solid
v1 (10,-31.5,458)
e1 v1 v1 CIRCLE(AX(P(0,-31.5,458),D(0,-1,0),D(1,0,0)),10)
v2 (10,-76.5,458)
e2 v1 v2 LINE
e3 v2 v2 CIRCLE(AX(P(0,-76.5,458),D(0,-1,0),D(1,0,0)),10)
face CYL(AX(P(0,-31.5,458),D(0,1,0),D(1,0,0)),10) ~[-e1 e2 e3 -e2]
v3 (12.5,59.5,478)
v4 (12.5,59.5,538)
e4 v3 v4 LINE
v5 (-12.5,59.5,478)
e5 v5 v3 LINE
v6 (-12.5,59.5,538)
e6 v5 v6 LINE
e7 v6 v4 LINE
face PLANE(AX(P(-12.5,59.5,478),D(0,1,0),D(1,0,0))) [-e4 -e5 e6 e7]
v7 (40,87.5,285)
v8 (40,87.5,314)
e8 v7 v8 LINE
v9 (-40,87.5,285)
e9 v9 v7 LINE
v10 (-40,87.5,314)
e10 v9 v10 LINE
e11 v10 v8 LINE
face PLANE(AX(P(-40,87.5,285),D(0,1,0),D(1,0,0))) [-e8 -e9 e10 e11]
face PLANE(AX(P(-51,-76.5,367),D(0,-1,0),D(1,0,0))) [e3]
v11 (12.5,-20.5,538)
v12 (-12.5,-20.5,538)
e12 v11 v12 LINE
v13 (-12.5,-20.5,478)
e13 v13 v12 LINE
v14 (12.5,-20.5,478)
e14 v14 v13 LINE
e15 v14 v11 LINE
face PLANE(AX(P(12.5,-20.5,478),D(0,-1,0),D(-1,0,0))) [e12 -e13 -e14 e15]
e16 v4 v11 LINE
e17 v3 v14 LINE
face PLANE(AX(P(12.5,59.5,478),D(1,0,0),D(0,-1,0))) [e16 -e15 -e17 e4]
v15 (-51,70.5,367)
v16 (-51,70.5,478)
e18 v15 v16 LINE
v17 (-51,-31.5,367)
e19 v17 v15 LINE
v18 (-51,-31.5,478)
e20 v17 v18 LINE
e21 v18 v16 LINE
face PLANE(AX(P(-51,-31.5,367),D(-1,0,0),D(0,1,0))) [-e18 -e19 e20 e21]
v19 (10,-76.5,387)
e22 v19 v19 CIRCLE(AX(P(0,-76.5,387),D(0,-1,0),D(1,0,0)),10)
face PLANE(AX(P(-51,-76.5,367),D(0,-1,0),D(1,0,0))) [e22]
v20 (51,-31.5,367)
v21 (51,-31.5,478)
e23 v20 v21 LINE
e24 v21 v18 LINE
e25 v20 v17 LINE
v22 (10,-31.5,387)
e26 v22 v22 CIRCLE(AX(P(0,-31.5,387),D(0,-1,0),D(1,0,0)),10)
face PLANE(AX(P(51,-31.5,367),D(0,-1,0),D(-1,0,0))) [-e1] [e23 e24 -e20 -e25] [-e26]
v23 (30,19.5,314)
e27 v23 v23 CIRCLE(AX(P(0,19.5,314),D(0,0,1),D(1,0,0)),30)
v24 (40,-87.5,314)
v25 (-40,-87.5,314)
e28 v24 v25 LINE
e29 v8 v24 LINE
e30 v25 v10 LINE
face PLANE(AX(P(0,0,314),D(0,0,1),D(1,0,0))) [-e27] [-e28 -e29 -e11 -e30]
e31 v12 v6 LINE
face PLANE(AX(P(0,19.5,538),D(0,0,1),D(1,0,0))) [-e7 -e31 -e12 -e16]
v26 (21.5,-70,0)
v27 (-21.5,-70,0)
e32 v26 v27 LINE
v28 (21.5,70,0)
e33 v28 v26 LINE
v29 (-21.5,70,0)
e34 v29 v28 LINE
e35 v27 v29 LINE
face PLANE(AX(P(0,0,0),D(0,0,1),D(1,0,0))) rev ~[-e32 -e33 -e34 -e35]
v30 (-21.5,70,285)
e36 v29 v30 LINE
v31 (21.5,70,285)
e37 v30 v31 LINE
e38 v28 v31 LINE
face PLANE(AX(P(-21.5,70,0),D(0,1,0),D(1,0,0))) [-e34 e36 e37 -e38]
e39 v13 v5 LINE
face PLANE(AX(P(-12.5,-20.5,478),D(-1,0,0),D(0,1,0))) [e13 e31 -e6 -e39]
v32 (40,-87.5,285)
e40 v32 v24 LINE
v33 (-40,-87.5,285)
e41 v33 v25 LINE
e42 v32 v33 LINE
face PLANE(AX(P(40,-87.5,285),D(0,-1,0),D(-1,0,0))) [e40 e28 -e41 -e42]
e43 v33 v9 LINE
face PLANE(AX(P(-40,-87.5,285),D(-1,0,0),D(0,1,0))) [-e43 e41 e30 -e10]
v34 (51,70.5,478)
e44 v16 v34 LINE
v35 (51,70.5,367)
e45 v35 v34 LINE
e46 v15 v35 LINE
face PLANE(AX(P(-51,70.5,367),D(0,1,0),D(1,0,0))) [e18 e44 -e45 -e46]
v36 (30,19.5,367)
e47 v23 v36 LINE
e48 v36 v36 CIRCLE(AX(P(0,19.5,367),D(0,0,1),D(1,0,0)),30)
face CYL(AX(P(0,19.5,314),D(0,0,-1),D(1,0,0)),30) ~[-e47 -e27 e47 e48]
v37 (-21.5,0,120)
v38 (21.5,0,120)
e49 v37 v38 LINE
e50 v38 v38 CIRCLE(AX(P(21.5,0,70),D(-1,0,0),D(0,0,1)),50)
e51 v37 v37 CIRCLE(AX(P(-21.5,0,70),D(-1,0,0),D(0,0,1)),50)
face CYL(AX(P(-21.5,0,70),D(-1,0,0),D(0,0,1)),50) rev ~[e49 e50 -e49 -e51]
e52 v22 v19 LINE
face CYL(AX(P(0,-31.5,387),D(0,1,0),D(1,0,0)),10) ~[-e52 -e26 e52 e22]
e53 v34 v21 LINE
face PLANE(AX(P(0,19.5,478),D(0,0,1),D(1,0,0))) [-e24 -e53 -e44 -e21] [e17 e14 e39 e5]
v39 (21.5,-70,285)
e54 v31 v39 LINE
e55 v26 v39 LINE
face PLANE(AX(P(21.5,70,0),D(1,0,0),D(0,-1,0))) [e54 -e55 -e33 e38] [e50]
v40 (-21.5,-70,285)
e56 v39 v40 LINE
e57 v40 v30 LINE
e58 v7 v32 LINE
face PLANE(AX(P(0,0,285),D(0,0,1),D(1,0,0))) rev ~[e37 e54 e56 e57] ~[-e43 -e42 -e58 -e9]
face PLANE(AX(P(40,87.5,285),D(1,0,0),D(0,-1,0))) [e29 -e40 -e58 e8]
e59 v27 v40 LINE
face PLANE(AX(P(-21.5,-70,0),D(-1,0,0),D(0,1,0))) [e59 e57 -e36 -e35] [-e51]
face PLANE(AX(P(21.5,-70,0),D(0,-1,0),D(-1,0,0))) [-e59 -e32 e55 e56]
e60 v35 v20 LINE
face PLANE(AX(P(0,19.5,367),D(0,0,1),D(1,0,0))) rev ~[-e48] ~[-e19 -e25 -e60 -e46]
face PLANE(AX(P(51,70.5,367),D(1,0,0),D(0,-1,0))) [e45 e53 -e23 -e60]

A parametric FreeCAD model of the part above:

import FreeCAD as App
import Part
import Sketcher
from FreeCAD import Vector


def add_polygon(sketch, points):
    """Adds a closed chain of lines whose ends are joined by coincident constraints."""
    first, n = sketch.GeometryCount, len(points)
    for a, b in zip(points, points[1:] + points[:1]):
        sketch.addGeometry(Part.LineSegment(App.Vector(*a, 0), App.Vector(*b, 0)), False)
    for i in range(n):
        sketch.addConstraint(Sketcher.Constraint("Coincident", first + i, 2, first + (i + 1) % n, 1))

doc = App.newDocument("Part")
params = doc.addObject("Spreadsheet::Sheet", "Params")
for row, (alias, value) in enumerate([
    ("sketch1_width", "43 mm"),
    ("sketch1_height", "140 mm"),
    ("pad1_length", "285 mm"),
    ("sketch2_width", "80 mm"),
    ("sketch2_height", "175 mm"),
    ("pad2_length", "29 mm"),
    ("sketch3_diameter", "60 mm"),
    ("pad3_length", "53 mm"),
    ("sketch4_width", "102 mm"),
    ("pad4_length", "111 mm"),
    ("sketch5_width", "25 mm"),
    ("sketch5_height", "80 mm"),
    ("pad5_length", "60 mm"),
    ("sketch6_diameter", "20 mm"),
    ("pad6_length", "45 mm"),
    ("sketch7_diameter", "100 mm"),
], start=1):
    params.set(f"A{row}", alias)
    params.set(f"B{row}", "=" + value)
    params.setAlias(f"B{row}", alias)

body = doc.addObject("PartDesign::Body", "Body")

sketch1 = doc.addObject("Sketcher::SketchObject", "Sketch")
body.addObject(sketch1)
sketch1.AttachmentSupport = (doc.XY_Plane, [""])
sketch1.MapMode = "FlatFace"
add_polygon(sketch1, [(21.5, 70), (-21.5, 70), (-21.5, -70), (21.5, -70)])
sketch1.addConstraint([
    Sketcher.Constraint("Horizontal", 0),
    Sketcher.Constraint("Vertical", 1),
    Sketcher.Constraint("Horizontal", 2),
    Sketcher.Constraint("Vertical", 3),
    Sketcher.Constraint("Symmetric", 0, 2, 2, 2, -1, 1),
    Sketcher.Constraint("DistanceX", 0, 2, 0, 1, 43.0),
    Sketcher.Constraint("DistanceY", 1, 2, 1, 1, 140.0),
])
sketch1.setExpression("Constraints[9]", "Params.sketch1_width")
sketch1.setExpression("Constraints[10]", "Params.sketch1_height")
pad1 = doc.addObject("PartDesign::Pad", "Pad")
body.addObject(pad1)
pad1.Profile = sketch1
pad1.setExpression("Length", "Params.pad1_length")

sketch2 = doc.addObject("Sketcher::SketchObject", "Sketch001")
body.addObject(sketch2)
sketch2.AttachmentSupport = (doc.XY_Plane, [""])
sketch2.MapMode = "FlatFace"
sketch2.AttachmentOffset = App.Placement(Vector(0, 0, 285), App.Rotation())
add_polygon(sketch2, [(40, 87.5), (-40, 87.5), (-40, -87.5), (40, -87.5)])
sketch2.addConstraint([
    Sketcher.Constraint("Horizontal", 0),
    Sketcher.Constraint("Vertical", 1),
    Sketcher.Constraint("Horizontal", 2),
    Sketcher.Constraint("Vertical", 3),
    Sketcher.Constraint("Symmetric", 0, 2, 2, 2, -1, 1),
    Sketcher.Constraint("DistanceX", 0, 2, 0, 1, 80.0),
    Sketcher.Constraint("DistanceY", 1, 2, 1, 1, 175.0),
])
sketch2.setExpression("Constraints[9]", "Params.sketch2_width")
sketch2.setExpression("Constraints[10]", "Params.sketch2_height")
pad2 = doc.addObject("PartDesign::Pad", "Pad001")
body.addObject(pad2)
pad2.Profile = sketch2
pad2.setExpression("Length", "Params.pad2_length")

sketch3 = doc.addObject("Sketcher::SketchObject", "Sketch002")
body.addObject(sketch3)
sketch3.AttachmentSupport = (doc.XY_Plane, [""])
sketch3.MapMode = "FlatFace"
sketch3.AttachmentOffset = App.Placement(Vector(0, 0, 314), App.Rotation())
sketch3.addGeometry(Part.Circle(Vector(0, 19.5, 0), Vector(0, 0, 1), 30), False)
sketch3.addConstraint([
    Sketcher.Constraint("PointOnObject", 0, 3, -2),
    Sketcher.Constraint("Diameter", 0, 60.0),
    Sketcher.Constraint("DistanceY", -1, 1, 0, 3, 19.5),
])
sketch3.setExpression("Constraints[1]", "Params.sketch3_diameter")
pad3 = doc.addObject("PartDesign::Pad", "Pad002")
body.addObject(pad3)
pad3.Profile = sketch3
pad3.setExpression("Length", "Params.pad3_length")

sketch4 = doc.addObject("Sketcher::SketchObject", "Sketch003")
body.addObject(sketch4)
sketch4.AttachmentSupport = (doc.XY_Plane, [""])
sketch4.MapMode = "FlatFace"
sketch4.AttachmentOffset = App.Placement(Vector(0, 0, 367), App.Rotation())
add_polygon(sketch4, [(51, 70.5), (-51, 70.5), (-51, -31.5), (51, -31.5)])
sketch4.addConstraint([
    Sketcher.Constraint("Horizontal", 0),
    Sketcher.Constraint("Vertical", 1),
    Sketcher.Constraint("Horizontal", 2),
    Sketcher.Constraint("Vertical", 3),
    Sketcher.Constraint("Equal", 2, 1),
    Sketcher.Constraint("DistanceX", 0, 2, 0, 1, 102.0),
    Sketcher.Constraint("DistanceX", 0, 2, -1, 1, 51.0),
    Sketcher.Constraint("DistanceY", -1, 1, 0, 2, 70.5),
])
sketch4.setExpression("Constraints[9]", "Params.sketch4_width")
pad4 = doc.addObject("PartDesign::Pad", "Pad003")
body.addObject(pad4)
pad4.Profile = sketch4
pad4.setExpression("Length", "Params.pad4_length")

sketch5 = doc.addObject("Sketcher::SketchObject", "Sketch004")
body.addObject(sketch5)
sketch5.AttachmentSupport = (doc.XY_Plane, [""])
sketch5.MapMode = "FlatFace"
sketch5.AttachmentOffset = App.Placement(Vector(0, 0, 478), App.Rotation())
add_polygon(sketch5, [(12.5, 59.5), (-12.5, 59.5), (-12.5, -20.5), (12.5, -20.5)])
sketch5.addConstraint([
    Sketcher.Constraint("Horizontal", 0),
    Sketcher.Constraint("Vertical", 1),
    Sketcher.Constraint("Horizontal", 2),
    Sketcher.Constraint("Vertical", 3),
    Sketcher.Constraint("DistanceX", 0, 2, 0, 1, 25.0),
    Sketcher.Constraint("DistanceY", 1, 2, 1, 1, 80.0),
    Sketcher.Constraint("DistanceX", 0, 2, -1, 1, 12.5),
    Sketcher.Constraint("DistanceY", -1, 1, 0, 2, 59.5),
])
sketch5.setExpression("Constraints[8]", "Params.sketch5_width")
sketch5.setExpression("Constraints[9]", "Params.sketch5_height")
pad5 = doc.addObject("PartDesign::Pad", "Pad004")
body.addObject(pad5)
pad5.Profile = sketch5
pad5.setExpression("Length", "Params.pad5_length")

sketch6 = doc.addObject("Sketcher::SketchObject", "Sketch005")
body.addObject(sketch6)
sketch6.AttachmentSupport = (doc.XZ_Plane, [""])
sketch6.MapMode = "FlatFace"
sketch6.AttachmentOffset = App.Placement(Vector(0, 0, 31.5), App.Rotation())
sketch6.addGeometry([
    Part.Circle(Vector(0, 458, 0), Vector(0, 0, 1), 10),
    Part.Circle(Vector(0, 387, 0), Vector(0, 0, 1), 10),
], False)
sketch6.addConstraint([
    Sketcher.Constraint("Equal", 0, 1),
    Sketcher.Constraint("PointOnObject", 0, 3, -2),
    Sketcher.Constraint("PointOnObject", 1, 3, -2),
    Sketcher.Constraint("Diameter", 0, 20.0),
    Sketcher.Constraint("DistanceY", -1, 1, 0, 3, 458.0),
    Sketcher.Constraint("DistanceY", -1, 1, 1, 3, 387.0),
])
sketch6.setExpression("Constraints[3]", "Params.sketch6_diameter")
pad6 = doc.addObject("PartDesign::Pad", "Pad005")
body.addObject(pad6)
pad6.Profile = sketch6
pad6.setExpression("Length", "Params.pad6_length")

sketch7 = doc.addObject("Sketcher::SketchObject", "Sketch006")
body.addObject(sketch7)
sketch7.AttachmentSupport = (doc.YZ_Plane, [""])
sketch7.MapMode = "FlatFace"
sketch7.AttachmentOffset = App.Placement(Vector(0, 0, -21.5), App.Rotation())
sketch7.addGeometry(Part.Circle(Vector(0, 70, 0), Vector(0, 0, 1), 50), False)
sketch7.addConstraint([
    Sketcher.Constraint("PointOnObject", 0, 3, -2),
    Sketcher.Constraint("Diameter", 0, 100.0),
    Sketcher.Constraint("DistanceY", -1, 1, 0, 3, 70.0),
])
sketch7.setExpression("Constraints[1]", "Params.sketch7_diameter")
pocket1 = doc.addObject("PartDesign::Pocket", "Pocket")
body.addObject(pocket1)
pocket1.Profile = sketch7
pocket1.Type = "ThroughAll"
pocket1.Reversed = True

doc.recompute()
